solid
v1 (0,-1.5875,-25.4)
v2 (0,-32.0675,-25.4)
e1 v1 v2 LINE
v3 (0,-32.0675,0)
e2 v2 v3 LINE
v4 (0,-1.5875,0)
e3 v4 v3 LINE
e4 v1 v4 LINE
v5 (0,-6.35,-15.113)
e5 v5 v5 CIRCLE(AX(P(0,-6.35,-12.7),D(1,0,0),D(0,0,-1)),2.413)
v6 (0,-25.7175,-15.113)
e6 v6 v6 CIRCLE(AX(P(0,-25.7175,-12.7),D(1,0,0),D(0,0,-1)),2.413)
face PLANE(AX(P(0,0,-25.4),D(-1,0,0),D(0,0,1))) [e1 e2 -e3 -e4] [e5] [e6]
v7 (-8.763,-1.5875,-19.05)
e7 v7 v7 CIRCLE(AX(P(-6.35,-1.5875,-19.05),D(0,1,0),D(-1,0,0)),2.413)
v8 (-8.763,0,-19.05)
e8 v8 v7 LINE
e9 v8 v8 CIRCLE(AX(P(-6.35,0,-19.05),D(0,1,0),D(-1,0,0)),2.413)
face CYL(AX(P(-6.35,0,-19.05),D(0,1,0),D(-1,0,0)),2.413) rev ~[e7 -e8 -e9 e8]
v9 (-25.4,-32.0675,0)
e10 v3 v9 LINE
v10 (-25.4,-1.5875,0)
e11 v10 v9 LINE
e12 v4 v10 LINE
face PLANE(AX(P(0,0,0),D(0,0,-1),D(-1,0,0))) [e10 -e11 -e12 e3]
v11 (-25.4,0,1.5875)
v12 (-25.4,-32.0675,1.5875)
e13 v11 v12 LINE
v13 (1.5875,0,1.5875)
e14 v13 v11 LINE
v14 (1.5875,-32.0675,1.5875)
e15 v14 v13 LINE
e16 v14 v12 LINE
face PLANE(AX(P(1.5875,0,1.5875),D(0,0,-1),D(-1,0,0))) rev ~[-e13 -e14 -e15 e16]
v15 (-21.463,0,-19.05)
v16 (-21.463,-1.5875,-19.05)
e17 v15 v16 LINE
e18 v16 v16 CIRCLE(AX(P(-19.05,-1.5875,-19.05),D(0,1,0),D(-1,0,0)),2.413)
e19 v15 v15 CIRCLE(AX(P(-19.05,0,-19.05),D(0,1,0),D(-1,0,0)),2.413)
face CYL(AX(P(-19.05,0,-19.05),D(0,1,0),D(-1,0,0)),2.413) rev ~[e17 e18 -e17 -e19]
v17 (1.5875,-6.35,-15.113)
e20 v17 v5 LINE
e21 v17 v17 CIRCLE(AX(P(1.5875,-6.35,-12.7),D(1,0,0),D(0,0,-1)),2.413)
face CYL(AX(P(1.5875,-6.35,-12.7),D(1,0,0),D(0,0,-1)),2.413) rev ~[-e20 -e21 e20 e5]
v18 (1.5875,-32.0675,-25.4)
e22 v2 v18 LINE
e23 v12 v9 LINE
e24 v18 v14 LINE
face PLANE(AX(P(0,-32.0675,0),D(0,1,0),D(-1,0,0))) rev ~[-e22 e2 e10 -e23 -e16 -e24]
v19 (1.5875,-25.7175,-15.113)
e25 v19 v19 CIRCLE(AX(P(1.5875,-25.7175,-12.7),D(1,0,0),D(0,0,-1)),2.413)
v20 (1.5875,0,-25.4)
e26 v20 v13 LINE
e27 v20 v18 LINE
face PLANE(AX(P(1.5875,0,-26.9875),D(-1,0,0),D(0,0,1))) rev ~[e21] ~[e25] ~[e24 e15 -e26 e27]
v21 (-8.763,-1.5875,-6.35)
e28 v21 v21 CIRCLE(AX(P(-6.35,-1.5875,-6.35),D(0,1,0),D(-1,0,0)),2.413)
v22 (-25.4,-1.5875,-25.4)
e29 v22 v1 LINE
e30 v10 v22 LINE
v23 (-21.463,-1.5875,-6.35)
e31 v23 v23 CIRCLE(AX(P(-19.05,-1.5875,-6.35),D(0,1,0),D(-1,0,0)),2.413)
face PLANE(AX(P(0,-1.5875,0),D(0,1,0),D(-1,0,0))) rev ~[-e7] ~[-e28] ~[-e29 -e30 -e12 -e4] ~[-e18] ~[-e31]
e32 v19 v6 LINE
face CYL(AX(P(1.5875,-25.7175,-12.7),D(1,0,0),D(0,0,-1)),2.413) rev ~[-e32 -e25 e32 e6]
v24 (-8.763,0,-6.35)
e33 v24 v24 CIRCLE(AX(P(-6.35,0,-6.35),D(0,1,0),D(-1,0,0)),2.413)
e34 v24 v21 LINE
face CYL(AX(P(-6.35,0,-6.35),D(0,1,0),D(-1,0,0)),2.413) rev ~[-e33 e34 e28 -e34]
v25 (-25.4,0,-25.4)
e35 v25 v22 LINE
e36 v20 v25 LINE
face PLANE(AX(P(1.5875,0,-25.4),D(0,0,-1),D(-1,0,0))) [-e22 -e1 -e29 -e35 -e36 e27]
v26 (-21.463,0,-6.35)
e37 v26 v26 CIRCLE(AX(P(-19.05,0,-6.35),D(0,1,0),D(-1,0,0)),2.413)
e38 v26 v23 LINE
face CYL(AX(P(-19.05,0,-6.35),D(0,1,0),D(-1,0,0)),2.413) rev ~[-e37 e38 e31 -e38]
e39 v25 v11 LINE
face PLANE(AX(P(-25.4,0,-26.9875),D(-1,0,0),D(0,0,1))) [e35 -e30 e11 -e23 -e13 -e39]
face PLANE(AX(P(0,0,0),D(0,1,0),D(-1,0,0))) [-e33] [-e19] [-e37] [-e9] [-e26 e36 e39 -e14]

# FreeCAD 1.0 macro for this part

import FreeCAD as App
import Part
import Sketcher

V = App.Vector
Q = App.Units.Quantity

doc = App.newDocument("Part")
body = doc.addObject("PartDesign::Body", "Body")

sketch1 = body.newObject("Sketcher::SketchObject", "Sketch")
sketch1.AttachmentSupport = (doc.getObject("XZ_Plane"), [""])
sketch1.MapMode = "FlatFace"
sketch1.addGeometry(Part.LineSegment(V(-27, 1.6, 0), V(1.6, 1.6, 0)), False)
sketch1.addGeometry(Part.LineSegment(V(1.6, 1.6, 0), V(1.6, -27, 0)), False)
sketch1.addGeometry(Part.LineSegment(V(1.6, -27, 0), V(-27, -27, 0)), False)
sketch1.addGeometry(Part.LineSegment(V(-27, -27, 0), V(-27, 1.6, 0)), False)
sketch1.addGeometry(Part.Circle(V(-6.3, -19.1, 0), V(0, 0, 1), 2.4), False)
sketch1.addGeometry(Part.Circle(V(-19.1, -19.1, 0), V(0, 0, 1), 2.4), False)
sketch1.addGeometry(Part.Circle(V(-6.3, -6.3, 0), V(0, 0, 1), 2.4), False)
sketch1.addGeometry(Part.Circle(V(-19.1, -6.3, 0), V(0, 0, 1), 2.4), False)
sketch1.addConstraint(Sketcher.Constraint("Coincident", 0, 2, 1, 1))
sketch1.addConstraint(Sketcher.Constraint("Coincident", 1, 2, 2, 1))
sketch1.addConstraint(Sketcher.Constraint("Coincident", 2, 2, 3, 1))
sketch1.addConstraint(Sketcher.Constraint("Coincident", 3, 2, 0, 1))
sketch1.addConstraint(Sketcher.Constraint("Horizontal", 0))
sketch1.addConstraint(Sketcher.Constraint("Vertical", 1))
sketch1.addConstraint(Sketcher.Constraint("Horizontal", 2))
sketch1.addConstraint(Sketcher.Constraint("Vertical", 3))
sketch1.addConstraint(Sketcher.Constraint("Equal", 4, 5))
sketch1.addConstraint(Sketcher.Constraint("Equal", 5, 6))
sketch1.addConstraint(Sketcher.Constraint("Equal", 6, 7))
sketch1.addConstraint(Sketcher.Constraint("Horizontal", 4, 3, 5, 3))
sketch1.addConstraint(Sketcher.Constraint("Horizontal", 6, 3, 7, 3))
sketch1.addConstraint(Sketcher.Constraint("Vertical", 4, 3, 6, 3))
sketch1.addConstraint(Sketcher.Constraint("Vertical", 5, 3, 7, 3))
sketch1.addConstraint(Sketcher.Constraint("Equal", 2, 1))
sketch1.addConstraint(Sketcher.Constraint("Diameter", 4, Q("0.19 in")))
sketch1.addConstraint(Sketcher.Constraint("DistanceX", 5, 3, 4, 3, Q("0.5 in")))
sketch1.addConstraint(Sketcher.Constraint("DistanceY", 4, 3, 6, 3, Q("0.5 in")))
sketch1.addConstraint(Sketcher.Constraint("DistanceX", 4, 3, -1, 1, Q("0.25 in")))
sketch1.addConstraint(Sketcher.Constraint("DistanceY", 6, 3, -1, 1, Q("0.25 in")))
sketch1.addConstraint(Sketcher.Constraint("DistanceX", -1, 1, 0, 2, Q("0.0625 in")))
sketch1.addConstraint(Sketcher.Constraint("DistanceY", -1, 1, 0, 2, Q("0.0625 in")))
sketch1.addConstraint(Sketcher.Constraint("DistanceX", 0, 1, 0, 2, Q("1.125 in")))
pad1 = body.newObject("PartDesign::Pad", "Pad")
pad1.Profile = sketch1
pad1.Length = Q("0.0625 in")

sketch2 = body.newObject("Sketcher::SketchObject", "Sketch001")
sketch2.AttachmentSupport = (doc.getObject("XZ_Plane"), [""])
sketch2.MapMode = "FlatFace"
sketch2.addGeometry(Part.LineSegment(V(-27, 2, 0), V(2, 2, 0)), False)
sketch2.addGeometry(Part.LineSegment(V(2, 2, 0), V(2, -27, 0)), False)
sketch2.addGeometry(Part.LineSegment(V(2, -27, 0), V(-27, -27, 0)), False)
sketch2.addGeometry(Part.LineSegment(V(-27, -27, 0), V(-27, 2, 0)), False)
sketch2.addGeometry(Part.LineSegment(V(0, -25, 0), V(0, 0, 0)), False)
sketch2.addGeometry(Part.LineSegment(V(0, 0, 0), V(-25, 0, 0)), False)
sketch2.addGeometry(Part.LineSegment(V(-25, 0, 0), V(-25, -25, 0)), False)
sketch2.addGeometry(Part.LineSegment(V(-25, -25, 0), V(0, -25, 0)), False)
sketch2.addConstraint(Sketcher.Constraint("Coincident", 0, 2, 1, 1))
sketch2.addConstraint(Sketcher.Constraint("Coincident", 1, 2, 2, 1))
sketch2.addConstraint(Sketcher.Constraint("Coincident", 2, 2, 3, 1))
sketch2.addConstraint(Sketcher.Constraint("Coincident", 3, 2, 0, 1))
sketch2.addConstraint(Sketcher.Constraint("Coincident", 4, 2, 5, 1))
sketch2.addConstraint(Sketcher.Constraint("Coincident", 5, 2, 6, 1))
sketch2.addConstraint(Sketcher.Constraint("Coincident", 6, 2, 7, 1))
sketch2.addConstraint(Sketcher.Constraint("Coincident", 7, 2, 4, 1))
sketch2.addConstraint(Sketcher.Constraint("Horizontal", 0))
sketch2.addConstraint(Sketcher.Constraint("Vertical", 1))
sketch2.addConstraint(Sketcher.Constraint("Horizontal", 2))
sketch2.addConstraint(Sketcher.Constraint("Vertical", 3))
sketch2.addConstraint(Sketcher.Constraint("Vertical", 4))
sketch2.addConstraint(Sketcher.Constraint("Horizontal", 5))
sketch2.addConstraint(Sketcher.Constraint("Vertical", 6))
sketch2.addConstraint(Sketcher.Constraint("Horizontal", 7))
sketch2.addConstraint(Sketcher.Constraint("Coincident", 4, 2, -1, 1))
sketch2.addConstraint(Sketcher.Constraint("Equal", 2, 1))
sketch2.addConstraint(Sketcher.Constraint("Equal", 7, 4))
sketch2.addConstraint(Sketcher.Constraint("DistanceX", 5, 2, 5, 1, Q("1 in")))
sketch2.addConstraint(Sketcher.Constraint("DistanceX", -1, 1, 0, 2, Q("0.0625 in")))
sketch2.addConstraint(Sketcher.Constraint("DistanceY", -1, 1, 0, 2, Q("0.0625 in")))
sketch2.addConstraint(Sketcher.Constraint("DistanceX", 3, 2, 5, 2, Q("0.0625 in")))
pad2 = body.newObject("PartDesign::Pad", "Pad001")
pad2.Profile = sketch2
pad2.Length = Q("1.2625 in")

sketch3 = body.newObject("Sketcher::SketchObject", "Sketch002")
sketch3.AttachmentSupport = (doc.getObject("YZ_Plane"), [""])
sketch3.MapMode = "FlatFace"
sketch3.AttachmentOffset = App.Placement(V(0, 0, 0.0625 * 25.4), App.Rotation())
sketch3.addGeometry(Part.Circle(V(-6.3, -12.7, 0), V(0, 0, 1), 2.4), False)
sketch3.addGeometry(Part.Circle(V(-25.7, -12.7, 0), V(0, 0, 1), 2.4), False)
sketch3.addConstraint(Sketcher.Constraint("Equal", 0, 1))
sketch3.addConstraint(Sketcher.Constraint("Horizontal", 0, 3, 1, 3))
sketch3.addConstraint(Sketcher.Constraint("Diameter", 0, Q("0.19 in")))
sketch3.addConstraint(Sketcher.Constraint("DistanceX", 0, 3, -1, 1, Q("0.25 in")))
sketch3.addConstraint(Sketcher.Constraint("DistanceY", 0, 3, -1, 1, Q("0.5 in")))
sketch3.addConstraint(Sketcher.Constraint("DistanceX", 1, 3, -1, 1, Q("1.0125 in")))
pocket1 = body.newObject("PartDesign::Pocket", "Pocket")
pocket1.Profile = sketch3
pocket1.Length = Q("1.2625 in")

sketch4 = body.newObject("Sketcher::SketchObject", "Sketch003")
sketch4.AttachmentSupport = (doc.getObject("YZ_Plane"), [""])
sketch4.MapMode = "FlatFace"
sketch4.AttachmentOffset = App.Placement(V(0, 0, -1.0625 * 25.4), App.Rotation())
sketch4.addGeometry(Part.LineSegment(V(0, 1.6, 0), V(0, -27, 0)), False)
sketch4.addGeometry(Part.LineSegment(V(0, -27, 0), V(-32.1, -27, 0)), False)
sketch4.addGeometry(Part.LineSegment(V(-32.1, -27, 0), V(-32.1, 1.6, 0)), False)
sketch4.addGeometry(Part.LineSegment(V(-32.1, 1.6, 0), V(0, 1.6, 0)), False)
sketch4.addGeometry(Part.Circle(V(-25.7, -12.7, 0), V(0, 0, 1), 2.4), False)
sketch4.addGeometry(Part.Circle(V(-6.3, -12.7, 0), V(0, 0, 1), 2.4), False)
sketch4.addConstraint(Sketcher.Constraint("Coincident", 0, 2, 1, 1))
sketch4.addConstraint(Sketcher.Constraint("Coincident", 1, 2, 2, 1))
sketch4.addConstraint(Sketcher.Constraint("Coincident", 2, 2, 3, 1))
sketch4.addConstraint(Sketcher.Constraint("Coincident", 3, 2, 0, 1))
sketch4.addConstraint(Sketcher.Constraint("Vertical", 0))
sketch4.addConstraint(Sketcher.Constraint("Horizontal", 1))
sketch4.addConstraint(Sketcher.Constraint("Vertical", 2))
sketch4.addConstraint(Sketcher.Constraint("Horizontal", 3))
sketch4.addConstraint(Sketcher.Constraint("Equal", 4, 5))
sketch4.addConstraint(Sketcher.Constraint("PointOnObject", 0, 2, -2))
sketch4.addConstraint(Sketcher.Constraint("Horizontal", 4, 3, 5, 3))
sketch4.addConstraint(Sketcher.Constraint("Diameter", 4, Q("0.19 in")))
sketch4.addConstraint(Sketcher.Constraint("DistanceY", 4, 3, -1, 1, Q("0.5 in")))
sketch4.addConstraint(Sketcher.Constraint("DistanceY", 0, 2, 0, 1, Q("1.125 in")))
sketch4.addConstraint(Sketcher.Constraint("DistanceX", 5, 3, -1, 1, Q("0.25 in")))
sketch4.addConstraint(Sketcher.Constraint("DistanceX", 1, 2, 4, 3, Q("0.25 in")))
sketch4.addConstraint(Sketcher.Constraint("DistanceX", 1, 2, 1, 1, Q("1.2625 in")))
sketch4.addConstraint(Sketcher.Constraint("DistanceY", 0, 2, -1, 1, Q("1.0625 in")))
pocket2 = body.newObject("PartDesign::Pocket", "Pocket001")
pocket2.Profile = sketch4
pocket2.Length = Q("0.0625 in")
pocket2.Reversed = True

sketch5 = body.newObject("Sketcher::SketchObject", "Sketch004")
sketch5.AttachmentSupport = (doc.getObject("XY_Plane"), [""])
sketch5.MapMode = "FlatFace"
sketch5.AttachmentOffset = App.Placement(V(0, 0, -1.0625 * 25.4), App.Rotation())
sketch5.addGeometry(Part.LineSegment(V(-27, 0, 0), V(2, 0, 0)), False)
sketch5.addGeometry(Part.LineSegment(V(2, 0, 0), V(2, -32, 0)), False)
sketch5.addGeometry(Part.LineSegment(V(2, -32, 0), V(-27, -32, 0)), False)
sketch5.addGeometry(Part.LineSegment(V(-27, -32, 0), V(-27, 0, 0)), False)
sketch5.addConstraint(Sketcher.Constraint("Coincident", 0, 2, 1, 1))
sketch5.addConstraint(Sketcher.Constraint("Coincident", 1, 2, 2, 1))
sketch5.addConstraint(Sketcher.Constraint("Coincident", 2, 2, 3, 1))
sketch5.addConstraint(Sketcher.Constraint("Coincident", 3, 2, 0, 1))
sketch5.addConstraint(Sketcher.Constraint("Horizontal", 0))
sketch5.addConstraint(Sketcher.Constraint("Vertical", 1))
sketch5.addConstraint(Sketcher.Constraint("Horizontal", 2))
sketch5.addConstraint(Sketcher.Constraint("Vertical", 3))
sketch5.addConstraint(Sketcher.Constraint("PointOnObject", 0, 2, -1))
sketch5.addConstraint(Sketcher.Constraint("DistanceX", 0, 1, 0, 2, Q("1.125 in")))
sketch5.addConstraint(Sketcher.Constraint("DistanceY", 1, 2, 1, 1, Q("1.2625 in")))
sketch5.addConstraint(Sketcher.Constraint("DistanceX", -1, 1, 0, 2, Q("0.0625 in")))
pocket3 = body.newObject("PartDesign::Pocket", "Pocket002")
pocket3.Profile = sketch5
pocket3.Length = Q("0.0625 in")
pocket3.Reversed = True

doc.recompute()
